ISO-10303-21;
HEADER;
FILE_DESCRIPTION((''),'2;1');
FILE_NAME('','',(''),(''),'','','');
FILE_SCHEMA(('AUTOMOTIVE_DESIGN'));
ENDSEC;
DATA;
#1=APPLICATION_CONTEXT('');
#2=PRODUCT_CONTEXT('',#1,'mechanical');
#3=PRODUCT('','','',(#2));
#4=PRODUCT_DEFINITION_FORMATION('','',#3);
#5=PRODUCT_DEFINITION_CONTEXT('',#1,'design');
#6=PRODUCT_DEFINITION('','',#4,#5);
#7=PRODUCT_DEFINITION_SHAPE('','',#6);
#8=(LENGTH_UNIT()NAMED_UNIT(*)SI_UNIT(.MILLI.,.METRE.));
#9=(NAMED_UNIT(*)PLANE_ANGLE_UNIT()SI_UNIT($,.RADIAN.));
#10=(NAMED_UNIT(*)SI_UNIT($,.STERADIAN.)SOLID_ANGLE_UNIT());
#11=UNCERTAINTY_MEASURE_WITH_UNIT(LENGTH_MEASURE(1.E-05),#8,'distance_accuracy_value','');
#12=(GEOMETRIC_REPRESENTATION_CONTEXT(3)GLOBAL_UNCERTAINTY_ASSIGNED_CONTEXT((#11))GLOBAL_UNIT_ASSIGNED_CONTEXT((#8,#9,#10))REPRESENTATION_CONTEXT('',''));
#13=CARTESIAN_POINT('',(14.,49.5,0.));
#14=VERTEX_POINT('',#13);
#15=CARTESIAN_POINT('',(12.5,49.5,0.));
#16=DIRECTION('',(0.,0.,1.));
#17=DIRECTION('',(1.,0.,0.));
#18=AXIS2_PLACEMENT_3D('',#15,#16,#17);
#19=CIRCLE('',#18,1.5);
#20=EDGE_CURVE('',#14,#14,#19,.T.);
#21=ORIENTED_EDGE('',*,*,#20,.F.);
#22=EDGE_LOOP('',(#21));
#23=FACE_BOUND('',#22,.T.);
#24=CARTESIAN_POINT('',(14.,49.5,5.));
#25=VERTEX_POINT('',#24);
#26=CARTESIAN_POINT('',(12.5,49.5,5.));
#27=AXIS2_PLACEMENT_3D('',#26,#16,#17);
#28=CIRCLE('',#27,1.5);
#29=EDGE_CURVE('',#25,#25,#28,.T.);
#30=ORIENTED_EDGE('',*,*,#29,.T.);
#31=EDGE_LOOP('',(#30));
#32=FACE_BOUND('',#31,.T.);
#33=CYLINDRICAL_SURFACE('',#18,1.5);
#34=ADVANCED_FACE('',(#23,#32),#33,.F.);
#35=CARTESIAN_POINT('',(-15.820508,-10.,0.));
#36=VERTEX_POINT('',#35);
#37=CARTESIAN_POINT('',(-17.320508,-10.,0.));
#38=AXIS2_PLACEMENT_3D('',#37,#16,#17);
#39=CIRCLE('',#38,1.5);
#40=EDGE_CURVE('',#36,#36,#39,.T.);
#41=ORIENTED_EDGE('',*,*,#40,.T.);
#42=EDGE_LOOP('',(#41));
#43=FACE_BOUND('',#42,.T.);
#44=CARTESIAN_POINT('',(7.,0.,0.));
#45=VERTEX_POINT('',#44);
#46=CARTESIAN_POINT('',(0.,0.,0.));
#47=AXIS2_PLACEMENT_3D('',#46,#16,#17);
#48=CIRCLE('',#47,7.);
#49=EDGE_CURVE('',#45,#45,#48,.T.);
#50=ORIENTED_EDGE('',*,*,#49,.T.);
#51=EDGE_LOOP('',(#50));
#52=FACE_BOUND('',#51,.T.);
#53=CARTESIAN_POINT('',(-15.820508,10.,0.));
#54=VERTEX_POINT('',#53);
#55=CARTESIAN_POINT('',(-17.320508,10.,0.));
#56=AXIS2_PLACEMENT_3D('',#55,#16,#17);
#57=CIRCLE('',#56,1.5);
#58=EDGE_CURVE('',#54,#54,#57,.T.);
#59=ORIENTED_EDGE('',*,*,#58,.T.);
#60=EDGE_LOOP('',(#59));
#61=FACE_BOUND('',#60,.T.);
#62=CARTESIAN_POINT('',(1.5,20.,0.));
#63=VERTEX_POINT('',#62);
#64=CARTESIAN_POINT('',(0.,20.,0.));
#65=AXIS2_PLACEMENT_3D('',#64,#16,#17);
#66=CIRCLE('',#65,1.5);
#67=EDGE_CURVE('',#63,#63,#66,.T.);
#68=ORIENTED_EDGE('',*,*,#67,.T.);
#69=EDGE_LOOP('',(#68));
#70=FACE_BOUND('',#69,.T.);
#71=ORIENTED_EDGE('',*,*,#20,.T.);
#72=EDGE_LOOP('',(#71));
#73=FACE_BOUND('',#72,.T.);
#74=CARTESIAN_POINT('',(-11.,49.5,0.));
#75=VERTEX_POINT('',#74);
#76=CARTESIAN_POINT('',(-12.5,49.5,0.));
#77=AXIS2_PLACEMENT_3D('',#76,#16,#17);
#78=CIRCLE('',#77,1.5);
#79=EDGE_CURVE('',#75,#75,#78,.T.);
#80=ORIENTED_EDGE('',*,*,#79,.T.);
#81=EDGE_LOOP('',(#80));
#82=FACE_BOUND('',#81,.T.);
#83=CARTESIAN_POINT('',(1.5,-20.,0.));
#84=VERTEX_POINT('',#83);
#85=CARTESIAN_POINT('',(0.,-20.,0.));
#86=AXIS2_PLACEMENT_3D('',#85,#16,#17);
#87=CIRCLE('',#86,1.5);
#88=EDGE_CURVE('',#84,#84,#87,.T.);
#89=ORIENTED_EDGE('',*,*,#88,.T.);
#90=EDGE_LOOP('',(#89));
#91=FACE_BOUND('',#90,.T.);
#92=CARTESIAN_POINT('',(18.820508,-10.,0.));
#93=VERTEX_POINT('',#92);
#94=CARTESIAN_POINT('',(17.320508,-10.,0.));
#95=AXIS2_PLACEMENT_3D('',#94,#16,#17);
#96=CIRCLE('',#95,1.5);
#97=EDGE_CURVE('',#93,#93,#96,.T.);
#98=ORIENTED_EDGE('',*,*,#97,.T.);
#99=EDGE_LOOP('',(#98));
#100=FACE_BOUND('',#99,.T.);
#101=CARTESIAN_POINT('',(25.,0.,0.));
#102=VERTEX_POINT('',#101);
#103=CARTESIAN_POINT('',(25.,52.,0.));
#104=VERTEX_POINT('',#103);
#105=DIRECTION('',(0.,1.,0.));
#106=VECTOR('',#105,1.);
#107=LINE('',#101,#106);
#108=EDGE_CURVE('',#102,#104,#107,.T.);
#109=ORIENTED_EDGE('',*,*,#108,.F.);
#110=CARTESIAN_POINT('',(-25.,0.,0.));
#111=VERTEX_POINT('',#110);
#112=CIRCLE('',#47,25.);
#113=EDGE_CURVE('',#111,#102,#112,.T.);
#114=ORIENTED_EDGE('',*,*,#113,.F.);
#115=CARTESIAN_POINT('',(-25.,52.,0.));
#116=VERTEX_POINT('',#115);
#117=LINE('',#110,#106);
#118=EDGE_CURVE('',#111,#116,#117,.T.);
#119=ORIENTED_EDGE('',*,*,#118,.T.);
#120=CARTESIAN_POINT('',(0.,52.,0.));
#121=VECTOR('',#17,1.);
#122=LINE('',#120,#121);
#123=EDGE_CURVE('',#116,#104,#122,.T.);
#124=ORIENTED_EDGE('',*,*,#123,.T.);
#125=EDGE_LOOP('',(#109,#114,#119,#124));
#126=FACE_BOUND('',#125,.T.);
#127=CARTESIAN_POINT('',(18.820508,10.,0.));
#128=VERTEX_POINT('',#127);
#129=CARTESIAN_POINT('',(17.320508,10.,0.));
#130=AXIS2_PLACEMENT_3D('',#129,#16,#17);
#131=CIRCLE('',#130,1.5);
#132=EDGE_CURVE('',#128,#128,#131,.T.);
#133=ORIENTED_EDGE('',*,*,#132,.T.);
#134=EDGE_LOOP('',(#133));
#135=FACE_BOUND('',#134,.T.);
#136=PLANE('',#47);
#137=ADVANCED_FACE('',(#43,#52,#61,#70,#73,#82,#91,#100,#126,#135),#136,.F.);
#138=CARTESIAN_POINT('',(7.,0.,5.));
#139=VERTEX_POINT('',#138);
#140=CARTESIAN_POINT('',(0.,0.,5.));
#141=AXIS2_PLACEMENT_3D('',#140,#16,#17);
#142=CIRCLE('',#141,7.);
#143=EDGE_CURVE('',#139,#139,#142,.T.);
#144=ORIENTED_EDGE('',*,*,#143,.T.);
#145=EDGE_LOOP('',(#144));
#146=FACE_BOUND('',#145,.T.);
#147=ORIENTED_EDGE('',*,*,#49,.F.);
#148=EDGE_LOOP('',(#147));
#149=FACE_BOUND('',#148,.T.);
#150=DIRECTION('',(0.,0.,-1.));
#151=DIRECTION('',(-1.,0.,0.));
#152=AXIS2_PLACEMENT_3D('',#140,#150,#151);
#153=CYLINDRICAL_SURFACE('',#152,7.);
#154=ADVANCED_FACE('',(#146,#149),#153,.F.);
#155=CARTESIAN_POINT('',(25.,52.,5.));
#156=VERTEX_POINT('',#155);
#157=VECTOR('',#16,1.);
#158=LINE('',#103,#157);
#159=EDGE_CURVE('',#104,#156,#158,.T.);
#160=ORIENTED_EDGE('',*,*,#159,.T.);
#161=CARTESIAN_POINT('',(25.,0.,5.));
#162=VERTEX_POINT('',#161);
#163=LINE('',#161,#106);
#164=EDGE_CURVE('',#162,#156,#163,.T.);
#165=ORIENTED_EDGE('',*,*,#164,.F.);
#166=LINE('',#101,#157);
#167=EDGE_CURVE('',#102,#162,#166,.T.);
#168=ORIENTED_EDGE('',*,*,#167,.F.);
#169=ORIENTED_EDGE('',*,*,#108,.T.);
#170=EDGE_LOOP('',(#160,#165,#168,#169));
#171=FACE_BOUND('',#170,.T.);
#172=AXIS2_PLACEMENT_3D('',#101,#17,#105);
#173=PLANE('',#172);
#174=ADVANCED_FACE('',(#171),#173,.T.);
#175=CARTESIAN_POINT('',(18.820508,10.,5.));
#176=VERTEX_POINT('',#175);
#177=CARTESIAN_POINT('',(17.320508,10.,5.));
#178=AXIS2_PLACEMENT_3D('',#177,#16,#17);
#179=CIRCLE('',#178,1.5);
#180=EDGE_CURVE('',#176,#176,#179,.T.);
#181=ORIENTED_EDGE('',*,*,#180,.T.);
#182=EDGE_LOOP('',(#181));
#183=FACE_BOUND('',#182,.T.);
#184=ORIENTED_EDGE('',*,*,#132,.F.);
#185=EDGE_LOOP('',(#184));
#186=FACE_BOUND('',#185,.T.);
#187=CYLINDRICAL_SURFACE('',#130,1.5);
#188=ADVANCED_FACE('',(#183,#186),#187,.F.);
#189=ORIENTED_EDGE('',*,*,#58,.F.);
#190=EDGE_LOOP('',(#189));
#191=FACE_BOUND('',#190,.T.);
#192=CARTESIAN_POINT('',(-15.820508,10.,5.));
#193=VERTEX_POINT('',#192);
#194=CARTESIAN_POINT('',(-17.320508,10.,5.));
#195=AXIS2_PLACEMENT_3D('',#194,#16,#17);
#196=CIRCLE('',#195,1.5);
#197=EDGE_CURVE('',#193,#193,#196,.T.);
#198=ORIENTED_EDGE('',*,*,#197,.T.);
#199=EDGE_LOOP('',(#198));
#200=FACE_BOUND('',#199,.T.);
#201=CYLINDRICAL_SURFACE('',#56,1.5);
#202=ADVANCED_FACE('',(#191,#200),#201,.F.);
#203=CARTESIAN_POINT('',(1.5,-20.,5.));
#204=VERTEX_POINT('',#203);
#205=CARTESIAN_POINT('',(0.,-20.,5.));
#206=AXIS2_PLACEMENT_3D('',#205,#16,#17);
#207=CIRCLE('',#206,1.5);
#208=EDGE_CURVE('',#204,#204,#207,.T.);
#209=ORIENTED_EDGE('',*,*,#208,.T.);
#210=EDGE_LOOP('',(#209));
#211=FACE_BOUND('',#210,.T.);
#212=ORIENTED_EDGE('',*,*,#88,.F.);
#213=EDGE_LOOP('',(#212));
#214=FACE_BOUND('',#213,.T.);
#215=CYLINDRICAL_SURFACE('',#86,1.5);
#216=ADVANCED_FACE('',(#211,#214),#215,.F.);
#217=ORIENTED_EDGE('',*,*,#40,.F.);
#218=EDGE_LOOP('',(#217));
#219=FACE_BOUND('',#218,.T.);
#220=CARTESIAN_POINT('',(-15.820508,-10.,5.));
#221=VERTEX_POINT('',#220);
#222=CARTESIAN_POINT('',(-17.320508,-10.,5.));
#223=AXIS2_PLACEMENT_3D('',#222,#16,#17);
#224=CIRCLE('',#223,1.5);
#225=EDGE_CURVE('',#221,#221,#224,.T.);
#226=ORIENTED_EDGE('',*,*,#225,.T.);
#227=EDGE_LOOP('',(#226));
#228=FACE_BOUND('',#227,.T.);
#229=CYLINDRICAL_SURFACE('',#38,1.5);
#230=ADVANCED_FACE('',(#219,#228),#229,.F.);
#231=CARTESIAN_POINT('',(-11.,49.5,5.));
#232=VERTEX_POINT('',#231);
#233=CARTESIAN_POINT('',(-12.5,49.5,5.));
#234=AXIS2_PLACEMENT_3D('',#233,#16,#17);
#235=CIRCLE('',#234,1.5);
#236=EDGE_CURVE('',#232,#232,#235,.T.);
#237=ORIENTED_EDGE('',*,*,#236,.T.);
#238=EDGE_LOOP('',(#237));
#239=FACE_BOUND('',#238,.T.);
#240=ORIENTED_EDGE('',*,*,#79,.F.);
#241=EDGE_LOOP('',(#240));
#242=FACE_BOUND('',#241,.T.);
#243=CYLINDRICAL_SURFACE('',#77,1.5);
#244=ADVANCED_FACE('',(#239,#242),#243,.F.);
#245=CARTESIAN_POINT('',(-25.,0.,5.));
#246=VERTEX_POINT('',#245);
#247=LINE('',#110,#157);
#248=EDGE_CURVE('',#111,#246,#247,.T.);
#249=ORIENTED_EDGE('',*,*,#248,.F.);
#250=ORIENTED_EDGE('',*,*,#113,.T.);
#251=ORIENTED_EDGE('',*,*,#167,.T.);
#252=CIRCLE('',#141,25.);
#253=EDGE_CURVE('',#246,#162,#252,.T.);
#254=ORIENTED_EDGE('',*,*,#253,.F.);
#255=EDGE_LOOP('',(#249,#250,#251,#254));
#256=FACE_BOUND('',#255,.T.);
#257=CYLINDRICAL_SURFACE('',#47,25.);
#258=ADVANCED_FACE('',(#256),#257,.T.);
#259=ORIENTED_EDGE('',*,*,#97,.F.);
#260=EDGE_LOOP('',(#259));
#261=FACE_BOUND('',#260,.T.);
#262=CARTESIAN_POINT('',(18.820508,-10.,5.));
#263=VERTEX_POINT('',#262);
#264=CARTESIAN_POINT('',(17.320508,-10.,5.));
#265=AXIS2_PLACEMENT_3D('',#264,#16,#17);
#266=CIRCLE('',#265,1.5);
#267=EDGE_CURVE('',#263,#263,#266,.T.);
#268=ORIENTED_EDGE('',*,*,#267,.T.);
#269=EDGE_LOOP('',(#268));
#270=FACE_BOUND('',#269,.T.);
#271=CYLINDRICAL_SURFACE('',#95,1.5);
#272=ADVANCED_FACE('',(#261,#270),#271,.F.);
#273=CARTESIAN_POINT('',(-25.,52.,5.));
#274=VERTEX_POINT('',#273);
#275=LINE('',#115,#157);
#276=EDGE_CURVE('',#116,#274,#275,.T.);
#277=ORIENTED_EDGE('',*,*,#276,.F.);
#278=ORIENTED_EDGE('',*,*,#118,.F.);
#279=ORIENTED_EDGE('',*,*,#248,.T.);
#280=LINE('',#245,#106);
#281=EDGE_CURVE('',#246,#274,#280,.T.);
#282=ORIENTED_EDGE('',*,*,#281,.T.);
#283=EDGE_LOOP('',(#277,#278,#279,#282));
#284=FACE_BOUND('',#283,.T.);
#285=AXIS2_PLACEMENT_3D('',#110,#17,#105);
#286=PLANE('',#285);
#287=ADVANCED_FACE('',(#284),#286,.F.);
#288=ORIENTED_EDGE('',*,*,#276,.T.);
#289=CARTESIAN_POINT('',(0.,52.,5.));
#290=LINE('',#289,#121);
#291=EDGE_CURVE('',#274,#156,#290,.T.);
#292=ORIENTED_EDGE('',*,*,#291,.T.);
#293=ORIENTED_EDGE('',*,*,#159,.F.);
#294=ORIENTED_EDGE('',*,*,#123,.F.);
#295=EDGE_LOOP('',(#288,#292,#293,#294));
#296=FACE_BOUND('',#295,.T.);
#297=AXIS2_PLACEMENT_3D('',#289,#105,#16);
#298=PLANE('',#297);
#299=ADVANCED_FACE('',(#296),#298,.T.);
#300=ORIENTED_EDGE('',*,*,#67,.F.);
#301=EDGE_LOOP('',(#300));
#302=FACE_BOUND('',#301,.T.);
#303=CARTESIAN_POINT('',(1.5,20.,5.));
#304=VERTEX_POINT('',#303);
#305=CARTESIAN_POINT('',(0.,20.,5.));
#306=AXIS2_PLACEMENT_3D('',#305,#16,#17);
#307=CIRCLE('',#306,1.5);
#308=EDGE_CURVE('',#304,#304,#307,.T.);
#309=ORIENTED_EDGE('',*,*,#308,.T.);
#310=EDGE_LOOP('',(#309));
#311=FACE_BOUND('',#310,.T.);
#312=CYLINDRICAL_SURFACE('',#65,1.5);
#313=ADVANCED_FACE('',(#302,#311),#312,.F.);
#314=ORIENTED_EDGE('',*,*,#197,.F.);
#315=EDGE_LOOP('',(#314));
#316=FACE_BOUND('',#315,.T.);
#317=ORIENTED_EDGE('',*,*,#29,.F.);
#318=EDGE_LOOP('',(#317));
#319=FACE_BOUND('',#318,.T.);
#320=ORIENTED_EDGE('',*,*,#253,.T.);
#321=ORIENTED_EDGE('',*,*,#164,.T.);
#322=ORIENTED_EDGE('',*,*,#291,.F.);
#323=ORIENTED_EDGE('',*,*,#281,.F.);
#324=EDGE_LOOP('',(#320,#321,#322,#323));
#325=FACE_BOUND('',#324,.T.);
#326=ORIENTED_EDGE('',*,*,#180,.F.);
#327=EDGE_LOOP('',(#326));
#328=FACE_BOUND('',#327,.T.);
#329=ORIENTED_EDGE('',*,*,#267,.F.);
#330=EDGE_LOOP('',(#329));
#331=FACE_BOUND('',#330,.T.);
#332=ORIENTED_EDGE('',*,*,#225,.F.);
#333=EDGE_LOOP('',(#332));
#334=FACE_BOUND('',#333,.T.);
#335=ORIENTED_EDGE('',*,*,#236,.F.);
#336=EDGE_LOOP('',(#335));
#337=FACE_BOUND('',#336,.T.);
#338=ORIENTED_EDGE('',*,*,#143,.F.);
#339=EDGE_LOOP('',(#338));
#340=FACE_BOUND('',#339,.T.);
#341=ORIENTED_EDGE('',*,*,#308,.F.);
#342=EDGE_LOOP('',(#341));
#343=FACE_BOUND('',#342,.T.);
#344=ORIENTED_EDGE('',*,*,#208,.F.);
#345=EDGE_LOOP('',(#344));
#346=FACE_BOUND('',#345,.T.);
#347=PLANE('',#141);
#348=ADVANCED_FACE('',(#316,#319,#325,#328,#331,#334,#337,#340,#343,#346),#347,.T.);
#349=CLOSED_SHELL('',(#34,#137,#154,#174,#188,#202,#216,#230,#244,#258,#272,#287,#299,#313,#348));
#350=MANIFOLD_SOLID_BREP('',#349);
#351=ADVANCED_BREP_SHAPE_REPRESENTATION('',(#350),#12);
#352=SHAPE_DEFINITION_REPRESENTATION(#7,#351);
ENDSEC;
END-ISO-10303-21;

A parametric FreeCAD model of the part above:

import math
import FreeCAD as App
import Part
import Sketcher

V = App.Vector
Q = App.Units.Quantity

doc = App.newDocument("Part")
body = doc.addObject("PartDesign::Body", "Body")

# Sketch on XY plane
sketch1 = body.newObject("Sketcher::SketchObject", "Sketch")
sketch1.AttachmentSupport = (doc.getObject("XY_Plane"), [""])
sketch1.MapMode = "FlatFace"
sketch1.addGeometry(Part.LineSegment(V(-50, 52, 0), V(-50, -48.548114, 0)), False)
sketch1.addGeometry(Part.LineSegment(V(-50, -48.548114, 0), V(50, -48.548114, 0)), False)
sketch1.addGeometry(Part.LineSegment(V(50, -48.548114, 0), V(50, 52, 0)), False)
sketch1.addGeometry(Part.LineSegment(V(50, 52, 0), V(-50, 52, 0)), False)
sketch1.addGeometry(Part.Circle(V(0, 0, 0), V(0, 0, 1), 7), False)
sketch1.addConstraint(Sketcher.Constraint("Coincident", 0, 2, 1, 1))
sketch1.addConstraint(Sketcher.Constraint("Coincident", 1, 2, 2, 1))
sketch1.addConstraint(Sketcher.Constraint("Coincident", 2, 2, 3, 1))
sketch1.addConstraint(Sketcher.Constraint("Coincident", 3, 2, 0, 1))
sketch1.addConstraint(Sketcher.Constraint("Vertical", 0))
sketch1.addConstraint(Sketcher.Constraint("Horizontal", 1))
sketch1.addConstraint(Sketcher.Constraint("Vertical", 2))
sketch1.addConstraint(Sketcher.Constraint("Horizontal", 3))
sketch1.addConstraint(Sketcher.Constraint("Coincident", 4, 3, -1, 1))
sketch1.addConstraint(Sketcher.Constraint("Diameter", 4, Q("14 mm")))
sketch1.addConstraint(Sketcher.Constraint("DistanceX", 1, 1, 1, 2, Q("100 mm")))
sketch1.addConstraint(Sketcher.Constraint("DistanceX", 0, 2, -1, 1, Q("50 mm")))
sketch1.addConstraint(Sketcher.Constraint("DistanceY", -1, 1, 2, 2, Q("52 mm")))
sketch1.addConstraint(Sketcher.Constraint("DistanceY", 0, 2, 0, 1, Q("100.548114 mm")))
pad1 = body.newObject("PartDesign::Pad", "Pad")
pad1.Profile = sketch1
pad1.Length = 5

# Sketch on XY plane
sketch2 = body.newObject("Sketcher::SketchObject", "Sketch001")
sketch2.AttachmentSupport = (doc.getObject("XY_Plane"), [""])
sketch2.MapMode = "FlatFace"
sketch2.AttachmentOffset = App.Placement(V(0, 0, 5), App.Rotation())
sketch2.addGeometry(Part.LineSegment(V(25, 52, 0), V(25, 0, 0)), False)
sketch2.addGeometry(Part.ArcOfCircle(Part.Circle(V(0, 0, 0), V(0, 0, 1), 25), math.radians(180), math.radians(360)), False)
sketch2.addGeometry(Part.LineSegment(V(-25, 0, 0), V(-25, 52, 0)), False)
sketch2.addGeometry(Part.LineSegment(V(-25, 52, 0), V(-50, 52, 0)), False)
sketch2.addGeometry(Part.LineSegment(V(-50, 52, 0), V(-50, -48.548114, 0)), False)
sketch2.addGeometry(Part.LineSegment(V(-50, -48.548114, 0), V(50, -48.548114, 0)), False)
sketch2.addGeometry(Part.LineSegment(V(50, -48.548114, 0), V(50, 52, 0)), False)
sketch2.addGeometry(Part.LineSegment(V(50, 52, 0), V(25, 52, 0)), False)
sketch2.addGeometry(Part.Circle(V(0, -20, 0), V(0, 0, 1), 1.5), False)
sketch2.addGeometry(Part.Circle(V(-17.320508, -10, 0), V(0, 0, 1), 1.5), False)
sketch2.addGeometry(Part.Circle(V(-17.320508, 10, 0), V(0, 0, 1), 1.5), False)
sketch2.addGeometry(Part.Circle(V(17.320508, -10, 0), V(0, 0, 1), 1.5), False)
sketch2.addGeometry(Part.Circle(V(0, 20, 0), V(0, 0, 1), 1.5), False)
sketch2.addGeometry(Part.Circle(V(17.320508, 10, 0), V(0, 0, 1), 1.5), False)
sketch2.addGeometry(Part.Circle(V(-12.5, 49.5, 0), V(0, 0, 1), 1.5), False)
sketch2.addGeometry(Part.Circle(V(12.5, 49.5, 0), V(0, 0, 1), 1.5), False)
sketch2.addConstraint(Sketcher.Constraint("Tangent", 0, 2, 1, 2))
sketch2.addConstraint(Sketcher.Constraint("Tangent", 1, 1, 2, 1))
sketch2.addConstraint(Sketcher.Constraint("Coincident", 2, 2, 3, 1))
sketch2.addConstraint(Sketcher.Constraint("Coincident", 3, 2, 4, 1))
sketch2.addConstraint(Sketcher.Constraint("Coincident", 4, 2, 5, 1))
sketch2.addConstraint(Sketcher.Constraint("Coincident", 5, 2, 6, 1))
sketch2.addConstraint(Sketcher.Constraint("Coincident", 6, 2, 7, 1))
sketch2.addConstraint(Sketcher.Constraint("Coincident", 7, 2, 0, 1))
sketch2.addConstraint(Sketcher.Constraint("Vertical", 0))
sketch2.addConstraint(Sketcher.Constraint("Vertical", 2))
sketch2.addConstraint(Sketcher.Constraint("Horizontal", 3))
sketch2.addConstraint(Sketcher.Constraint("Vertical", 4))
sketch2.addConstraint(Sketcher.Constraint("Horizontal", 5))
sketch2.addConstraint(Sketcher.Constraint("Vertical", 6))
sketch2.addConstraint(Sketcher.Constraint("Horizontal", 7))
sketch2.addConstraint(Sketcher.Constraint("Coincident", 1, 3, -1, 1))
sketch2.addConstraint(Sketcher.Constraint("Equal", 8, 9))
sketch2.addConstraint(Sketcher.Constraint("Equal", 9, 10))
sketch2.addConstraint(Sketcher.Constraint("Equal", 10, 11))
sketch2.addConstraint(Sketcher.Constraint("Equal", 11, 12))
sketch2.addConstraint(Sketcher.Constraint("Equal", 12, 13))
sketch2.addConstraint(Sketcher.Constraint("Equal", 13, 14))
sketch2.addConstraint(Sketcher.Constraint("Equal", 14, 15))
sketch2.addConstraint(Sketcher.Constraint("Symmetric", 10, 3, 11, 3, -1, 1))
sketch2.addConstraint(Sketcher.Constraint("Symmetric", 8, 3, 12, 3, -1, 1))
sketch2.addConstraint(Sketcher.Constraint("Symmetric", 9, 3, 13, 3, -1, 1))
sketch2.addConstraint(Sketcher.Constraint("Symmetric", 9, 3, 11, 3, -2))
sketch2.addConstraint(Sketcher.Constraint("Symmetric", 14, 3, 15, 3, -2))
sketch2.addConstraint(Sketcher.Constraint("Symmetric", 3, 2, 6, 2, -2))
sketch2.addConstraint(Sketcher.Constraint("PointOnObject", 8, 3, -2))
sketch2.addConstraint(Sketcher.Constraint("Diameter", 8, Q("3 mm")))
sketch2.addConstraint(Sketcher.Constraint("Radius", 1, Q("25 mm")))
sketch2.addConstraint(Sketcher.Constraint("DistanceX", 3, 2, 3, 1, Q("25 mm")))
sketch2.addConstraint(Sketcher.Constraint("DistanceY", 0, 2, 0, 1, Q("52 mm")))
sketch2.addConstraint(Sketcher.Constraint("DistanceY", 8, 3, -1, 1, Q("20 mm")))
sketch2.addConstraint(Sketcher.Constraint("DistanceY", 9, 3, -1, 1, Q("10 mm")))
sketch2.addConstraint(Sketcher.Constraint("DistanceX", 14, 3, 15, 3, Q("25 mm")))
sketch2.addConstraint(Sketcher.Constraint("DistanceY", -1, 1, 14, 3, Q("49.5 mm")))
sketch2.addConstraint(Sketcher.Constraint("DistanceY", 4, 2, 4, 1, Q("100.548114 mm")))
sketch2.addConstraint(Sketcher.Constraint("DistanceX", 9, 3, -1, 1, Q("17.320508 mm")))
pocket1 = body.newObject("PartDesign::Pocket", "Pocket")
pocket1.Profile = sketch2
pocket1.Type = "ThroughAll"

doc.recompute()
